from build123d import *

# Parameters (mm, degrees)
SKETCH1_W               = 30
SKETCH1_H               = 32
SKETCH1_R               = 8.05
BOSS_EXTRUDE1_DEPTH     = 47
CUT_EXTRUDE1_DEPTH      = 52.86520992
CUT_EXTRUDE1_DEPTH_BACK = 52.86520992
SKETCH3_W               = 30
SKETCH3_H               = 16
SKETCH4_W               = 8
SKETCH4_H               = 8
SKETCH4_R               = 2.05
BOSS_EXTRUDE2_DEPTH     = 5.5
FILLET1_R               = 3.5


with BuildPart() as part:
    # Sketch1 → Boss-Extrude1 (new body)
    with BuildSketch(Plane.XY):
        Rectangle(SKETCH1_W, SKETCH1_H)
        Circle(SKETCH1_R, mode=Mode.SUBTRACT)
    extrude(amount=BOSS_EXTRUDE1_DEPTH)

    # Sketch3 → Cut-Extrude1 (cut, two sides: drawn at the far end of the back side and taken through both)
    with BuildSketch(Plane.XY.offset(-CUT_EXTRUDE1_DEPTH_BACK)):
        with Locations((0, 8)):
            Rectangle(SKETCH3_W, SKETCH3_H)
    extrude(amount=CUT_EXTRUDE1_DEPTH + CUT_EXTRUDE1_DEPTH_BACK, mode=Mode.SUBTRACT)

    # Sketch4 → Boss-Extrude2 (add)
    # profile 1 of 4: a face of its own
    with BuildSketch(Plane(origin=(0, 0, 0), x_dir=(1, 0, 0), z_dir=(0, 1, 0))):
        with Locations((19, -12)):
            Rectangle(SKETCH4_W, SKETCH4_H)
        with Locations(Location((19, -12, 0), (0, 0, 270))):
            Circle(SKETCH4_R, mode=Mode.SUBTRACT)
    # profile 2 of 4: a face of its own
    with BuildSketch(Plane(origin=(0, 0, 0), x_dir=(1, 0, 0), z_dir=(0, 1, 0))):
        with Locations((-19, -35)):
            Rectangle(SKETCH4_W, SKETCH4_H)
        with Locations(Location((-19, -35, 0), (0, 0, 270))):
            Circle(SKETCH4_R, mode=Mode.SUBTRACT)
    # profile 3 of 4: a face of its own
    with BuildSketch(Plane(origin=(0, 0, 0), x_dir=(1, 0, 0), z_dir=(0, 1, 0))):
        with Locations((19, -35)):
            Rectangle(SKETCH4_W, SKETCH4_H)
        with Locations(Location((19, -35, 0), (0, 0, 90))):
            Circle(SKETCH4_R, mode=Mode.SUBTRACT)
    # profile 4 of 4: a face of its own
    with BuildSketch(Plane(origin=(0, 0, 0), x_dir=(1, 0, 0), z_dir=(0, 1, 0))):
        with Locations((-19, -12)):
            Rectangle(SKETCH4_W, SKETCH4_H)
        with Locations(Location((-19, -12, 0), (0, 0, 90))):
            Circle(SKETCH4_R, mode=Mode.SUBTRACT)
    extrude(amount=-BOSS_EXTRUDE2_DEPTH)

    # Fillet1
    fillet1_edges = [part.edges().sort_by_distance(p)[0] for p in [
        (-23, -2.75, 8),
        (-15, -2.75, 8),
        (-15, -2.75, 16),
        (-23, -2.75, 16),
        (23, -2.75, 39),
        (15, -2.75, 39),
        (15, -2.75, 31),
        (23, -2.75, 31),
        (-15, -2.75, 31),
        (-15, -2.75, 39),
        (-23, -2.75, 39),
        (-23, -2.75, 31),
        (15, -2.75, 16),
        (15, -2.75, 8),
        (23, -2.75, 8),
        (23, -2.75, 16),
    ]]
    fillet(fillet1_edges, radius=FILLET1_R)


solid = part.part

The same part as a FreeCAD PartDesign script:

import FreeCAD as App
import Part
import Sketcher

V = App.Vector


def edges_at(feature, points):
    """Names of the edges that pass closest to the given points."""
    edges = feature.Shape.Edges
    near = lambda p: min(range(len(edges)), key=lambda i: edges[i].distToShape(Part.Vertex(*p))[0])
    return sorted({f"Edge{near(p) + 1}" for p in points})

doc = App.newDocument("Part")
body = doc.addObject("PartDesign::Body", "Body")

# Sketch on XY plane
sketch1 = doc.addObject("Sketcher::SketchObject", "Sketch")
body.addObject(sketch1)
sketch1.AttachmentSupport = (doc.XY_Plane, [""])
sketch1.MapMode = "FlatFace"
sketch1.addGeometry(Part.LineSegment(V(-15, 16, 0), V(-15, -16, 0)), False)
sketch1.addGeometry(Part.LineSegment(V(-15, -16, 0), V(15, -16, 0)), False)
sketch1.addGeometry(Part.LineSegment(V(15, -16, 0), V(15, 16, 0)), False)
sketch1.addGeometry(Part.LineSegment(V(15, 16, 0), V(-15, 16, 0)), False)
sketch1.addGeometry(Part.Circle(V(0, 0, 0), V(0, 0, 1), 8), False)
sketch1.addConstraint(Sketcher.Constraint("Coincident", 0, 2, 1, 1))
sketch1.addConstraint(Sketcher.Constraint("Coincident", 1, 2, 2, 1))
sketch1.addConstraint(Sketcher.Constraint("Coincident", 2, 2, 3, 1))
sketch1.addConstraint(Sketcher.Constraint("Coincident", 3, 2, 0, 1))
sketch1.addConstraint(Sketcher.Constraint("Vertical", 0))
sketch1.addConstraint(Sketcher.Constraint("Horizontal", 1))
sketch1.addConstraint(Sketcher.Constraint("Vertical", 2))
sketch1.addConstraint(Sketcher.Constraint("Horizontal", 3))
sketch1.addConstraint(Sketcher.Constraint("Coincident", 4, 3, -1, 1))
sketch1.addConstraint(Sketcher.Constraint("Symmetric", 0, 2, 2, 2, -1, 1))
sketch1.addConstraint(Sketcher.Constraint("Diameter", 4, 16.1))
sketch1.addConstraint(Sketcher.Constraint("DistanceX", 1, 1, 1, 2, 30.0))
sketch1.addConstraint(Sketcher.Constraint("DistanceY", 0, 2, 0, 1, 32.0))
pad1 = doc.addObject("PartDesign::Pad", "Pad")
body.addObject(pad1)
pad1.Profile = sketch1
pad1.Length = 47

# Sketch on XY plane
sketch2 = doc.addObject("Sketcher::SketchObject", "Sketch001")
body.addObject(sketch2)
sketch2.AttachmentSupport = (doc.XY_Plane, [""])
sketch2.MapMode = "FlatFace"
sketch2.addGeometry(Part.LineSegment(V(-15, 16, 0), V(-15, 0, 0)), False)
sketch2.addGeometry(Part.LineSegment(V(-15, 0, 0), V(15, 0, 0)), False)
sketch2.addGeometry(Part.LineSegment(V(15, 0, 0), V(15, 16, 0)), False)
sketch2.addGeometry(Part.LineSegment(V(15, 16, 0), V(-15, 16, 0)), False)
sketch2.addConstraint(Sketcher.Constraint("Coincident", 0, 2, 1, 1))
sketch2.addConstraint(Sketcher.Constraint("Coincident", 1, 2, 2, 1))
sketch2.addConstraint(Sketcher.Constraint("Coincident", 2, 2, 3, 1))
sketch2.addConstraint(Sketcher.Constraint("Coincident", 3, 2, 0, 1))
sketch2.addConstraint(Sketcher.Constraint("Vertical", 0))
sketch2.addConstraint(Sketcher.Constraint("Horizontal", 1))
sketch2.addConstraint(Sketcher.Constraint("Vertical", 2))
sketch2.addConstraint(Sketcher.Constraint("Horizontal", 3))
sketch2.addConstraint(Sketcher.Constraint("Symmetric", 0, 2, 1, 2, -1, 1))
sketch2.addConstraint(Sketcher.Constraint("DistanceX", 1, 1, 1, 2, 30.0))
sketch2.addConstraint(Sketcher.Constraint("DistanceY", 0, 2, 0, 1, 16.0))
pocket1 = doc.addObject("PartDesign::Pocket", "Pocket")
body.addObject(pocket1)
pocket1.Profile = sketch2
pocket1.Type = "ThroughAll"
pocket1.Midplane = True

# Sketch on XZ plane
sketch3 = doc.addObject("Sketcher::SketchObject", "Sketch002")
body.addObject(sketch3)
sketch3.AttachmentSupport = (doc.XZ_Plane, [""])
sketch3.MapMode = "FlatFace"
sketch3.addGeometry(Part.LineSegment(V(15, 8, 0), V(15, 16, 0)), False)
sketch3.addGeometry(Part.LineSegment(V(15, 16, 0), V(23, 16, 0)), False)
sketch3.addGeometry(Part.LineSegment(V(23, 16, 0), V(23, 8, 0)), False)
sketch3.addGeometry(Part.LineSegment(V(23, 8, 0), V(15, 8, 0)), False)
sketch3.addGeometry(Part.Circle(V(19, 12, 0), V(0, 0, 1), 2), False)
sketch3.addGeometry(Part.LineSegment(V(-23, 31, 0), V(-23, 39, 0)), False)
sketch3.addGeometry(Part.LineSegment(V(-23, 39, 0), V(-15, 39, 0)), False)
sketch3.addGeometry(Part.LineSegment(V(-15, 39, 0), V(-15, 31, 0)), False)
sketch3.addGeometry(Part.LineSegment(V(-15, 31, 0), V(-23, 31, 0)), False)
sketch3.addGeometry(Part.Circle(V(-19, 35, 0), V(0, 0, 1), 2), False)
sketch3.addGeometry(Part.LineSegment(V(15, 31, 0), V(15, 39, 0)), False)
sketch3.addGeometry(Part.LineSegment(V(15, 39, 0), V(23, 39, 0)), False)
sketch3.addGeometry(Part.LineSegment(V(23, 39, 0), V(23, 31, 0)), False)
sketch3.addGeometry(Part.LineSegment(V(23, 31, 0), V(15, 31, 0)), False)
sketch3.addGeometry(Part.Circle(V(19, 35, 0), V(0, 0, 1), 2), False)
sketch3.addGeometry(Part.LineSegment(V(-23, 8, 0), V(-23, 16, 0)), False)
sketch3.addGeometry(Part.LineSegment(V(-23, 16, 0), V(-15, 16, 0)), False)
sketch3.addGeometry(Part.LineSegment(V(-15, 16, 0), V(-15, 8, 0)), False)
sketch3.addGeometry(Part.LineSegment(V(-15, 8, 0), V(-23, 8, 0)), False)
sketch3.addGeometry(Part.Circle(V(-19, 12, 0), V(0, 0, 1), 2), False)
sketch3.addConstraint(Sketcher.Constraint("Coincident", 0, 2, 1, 1))
sketch3.addConstraint(Sketcher.Constraint("Coincident", 1, 2, 2, 1))
sketch3.addConstraint(Sketcher.Constraint("Coincident", 2, 2, 3, 1))
sketch3.addConstraint(Sketcher.Constraint("Coincident", 3, 2, 0, 1))
sketch3.addConstraint(Sketcher.Constraint("Coincident", 5, 2, 6, 1))
sketch3.addConstraint(Sketcher.Constraint("Coincident", 6, 2, 7, 1))
sketch3.addConstraint(Sketcher.Constraint("Coincident", 7, 2, 8, 1))
sketch3.addConstraint(Sketcher.Constraint("Coincident", 8, 2, 5, 1))
sketch3.addConstraint(Sketcher.Constraint("Coincident", 10, 2, 11, 1))
sketch3.addConstraint(Sketcher.Constraint("Coincident", 11, 2, 12, 1))
sketch3.addConstraint(Sketcher.Constraint("Coincident", 12, 2, 13, 1))
sketch3.addConstraint(Sketcher.Constraint("Coincident", 13, 2, 10, 1))
sketch3.addConstraint(Sketcher.Constraint("Coincident", 15, 2, 16, 1))
sketch3.addConstraint(Sketcher.Constraint("Coincident", 16, 2, 17, 1))
sketch3.addConstraint(Sketcher.Constraint("Coincident", 17, 2, 18, 1))
sketch3.addConstraint(Sketcher.Constraint("Coincident", 18, 2, 15, 1))
sketch3.addConstraint(Sketcher.Constraint("Vertical", 0))
sketch3.addConstraint(Sketcher.Constraint("Horizontal", 1))
sketch3.addConstraint(Sketcher.Constraint("Vertical", 2))
sketch3.addConstraint(Sketcher.Constraint("Horizontal", 3))
sketch3.addConstraint(Sketcher.Constraint("Vertical", 5))
sketch3.addConstraint(Sketcher.Constraint("Horizontal", 6))
sketch3.addConstraint(Sketcher.Constraint("Vertical", 7))
sketch3.addConstraint(Sketcher.Constraint("Horizontal", 8))
sketch3.addConstraint(Sketcher.Constraint("Vertical", 10))
sketch3.addConstraint(Sketcher.Constraint("Horizontal", 11))
sketch3.addConstraint(Sketcher.Constraint("Vertical", 12))
sketch3.addConstraint(Sketcher.Constraint("Horizontal", 13))
sketch3.addConstraint(Sketcher.Constraint("Vertical", 15))
sketch3.addConstraint(Sketcher.Constraint("Horizontal", 16))
sketch3.addConstraint(Sketcher.Constraint("Vertical", 17))
sketch3.addConstraint(Sketcher.Constraint("Horizontal", 18))
sketch3.addConstraint(Sketcher.Constraint("Equal", 4, 9))
sketch3.addConstraint(Sketcher.Constraint("Equal", 9, 14))
sketch3.addConstraint(Sketcher.Constraint("Equal", 14, 19))
sketch3.addConstraint(Sketcher.Constraint("Symmetric", 9, 3, 14, 3, -2))
sketch3.addConstraint(Sketcher.Constraint("Symmetric", 4, 3, 19, 3, -2))
sketch3.addConstraint(Sketcher.Constraint("Symmetric", 6, 2, 10, 2, -2))
sketch3.addConstraint(Sketcher.Constraint("Symmetric", 8, 2, 12, 2, -2))
sketch3.addConstraint(Sketcher.Constraint("Symmetric", 1, 2, 15, 2, -2))
sketch3.addConstraint(Sketcher.Constraint("Symmetric", 3, 2, 17, 2, -2))
sketch3.addConstraint(Sketcher.Constraint("Vertical", 4, 3, 14, 3))
sketch3.addConstraint(Sketcher.Constraint("Vertical", 3, 2, 10, 2))
sketch3.addConstraint(Sketcher.Constraint("Vertical", 2, 2, 11, 2))
sketch3.addConstraint(Sketcher.Constraint("Equal", 18, 0))
sketch3.addConstraint(Sketcher.Constraint("Equal", 2, 5))
sketch3.addConstraint(Sketcher.Constraint("Diameter", 4, 4.1))
sketch3.addConstraint(Sketcher.Constraint("DistanceX", 1, 1, 1, 2, 8.0))
sketch3.addConstraint(Sketcher.Constraint("DistanceX", -1, 1, 4, 3, 19.0))
sketch3.addConstraint(Sketcher.Constraint("DistanceY", -1, 1, 4, 3, 12.0))
sketch3.addConstraint(Sketcher.Constraint("DistanceY", -1, 1, 9, 3, 35.0))
sketch3.addConstraint(Sketcher.Constraint("DistanceX", -1, 1, 0, 2, 15.0))
sketch3.addConstraint(Sketcher.Constraint("DistanceY", -1, 1, 0, 2, 16.0))
sketch3.addConstraint(Sketcher.Constraint("DistanceY", -1, 1, 5, 2, 39.0))
pad2 = doc.addObject("PartDesign::Pad", "Pad001")
body.addObject(pad2)
pad2.Profile = sketch3
pad2.Length = 5.5
doc.recompute()

fillet = doc.addObject("PartDesign::Fillet", "Fillet")
body.addObject(fillet)
fillet.Base = (pad2, edges_at(pad2, [
    (-23, -2.75, 8),
    (-15, -2.75, 8),
    (-15, -2.75, 16),
    (-23, -2.75, 16),
    (23, -2.75, 39),
    (15, -2.75, 39),
    (15, -2.75, 31),
    (23, -2.75, 31),
    (-15, -2.75, 31),
    (-15, -2.75, 39),
    (-23, -2.75, 39),
    (-23, -2.75, 31),
    (15, -2.75, 16),
    (15, -2.75, 8),
    (23, -2.75, 8),
    (23, -2.75, 16),
]))
fillet.Radius = 3.5

doc.recompute()
